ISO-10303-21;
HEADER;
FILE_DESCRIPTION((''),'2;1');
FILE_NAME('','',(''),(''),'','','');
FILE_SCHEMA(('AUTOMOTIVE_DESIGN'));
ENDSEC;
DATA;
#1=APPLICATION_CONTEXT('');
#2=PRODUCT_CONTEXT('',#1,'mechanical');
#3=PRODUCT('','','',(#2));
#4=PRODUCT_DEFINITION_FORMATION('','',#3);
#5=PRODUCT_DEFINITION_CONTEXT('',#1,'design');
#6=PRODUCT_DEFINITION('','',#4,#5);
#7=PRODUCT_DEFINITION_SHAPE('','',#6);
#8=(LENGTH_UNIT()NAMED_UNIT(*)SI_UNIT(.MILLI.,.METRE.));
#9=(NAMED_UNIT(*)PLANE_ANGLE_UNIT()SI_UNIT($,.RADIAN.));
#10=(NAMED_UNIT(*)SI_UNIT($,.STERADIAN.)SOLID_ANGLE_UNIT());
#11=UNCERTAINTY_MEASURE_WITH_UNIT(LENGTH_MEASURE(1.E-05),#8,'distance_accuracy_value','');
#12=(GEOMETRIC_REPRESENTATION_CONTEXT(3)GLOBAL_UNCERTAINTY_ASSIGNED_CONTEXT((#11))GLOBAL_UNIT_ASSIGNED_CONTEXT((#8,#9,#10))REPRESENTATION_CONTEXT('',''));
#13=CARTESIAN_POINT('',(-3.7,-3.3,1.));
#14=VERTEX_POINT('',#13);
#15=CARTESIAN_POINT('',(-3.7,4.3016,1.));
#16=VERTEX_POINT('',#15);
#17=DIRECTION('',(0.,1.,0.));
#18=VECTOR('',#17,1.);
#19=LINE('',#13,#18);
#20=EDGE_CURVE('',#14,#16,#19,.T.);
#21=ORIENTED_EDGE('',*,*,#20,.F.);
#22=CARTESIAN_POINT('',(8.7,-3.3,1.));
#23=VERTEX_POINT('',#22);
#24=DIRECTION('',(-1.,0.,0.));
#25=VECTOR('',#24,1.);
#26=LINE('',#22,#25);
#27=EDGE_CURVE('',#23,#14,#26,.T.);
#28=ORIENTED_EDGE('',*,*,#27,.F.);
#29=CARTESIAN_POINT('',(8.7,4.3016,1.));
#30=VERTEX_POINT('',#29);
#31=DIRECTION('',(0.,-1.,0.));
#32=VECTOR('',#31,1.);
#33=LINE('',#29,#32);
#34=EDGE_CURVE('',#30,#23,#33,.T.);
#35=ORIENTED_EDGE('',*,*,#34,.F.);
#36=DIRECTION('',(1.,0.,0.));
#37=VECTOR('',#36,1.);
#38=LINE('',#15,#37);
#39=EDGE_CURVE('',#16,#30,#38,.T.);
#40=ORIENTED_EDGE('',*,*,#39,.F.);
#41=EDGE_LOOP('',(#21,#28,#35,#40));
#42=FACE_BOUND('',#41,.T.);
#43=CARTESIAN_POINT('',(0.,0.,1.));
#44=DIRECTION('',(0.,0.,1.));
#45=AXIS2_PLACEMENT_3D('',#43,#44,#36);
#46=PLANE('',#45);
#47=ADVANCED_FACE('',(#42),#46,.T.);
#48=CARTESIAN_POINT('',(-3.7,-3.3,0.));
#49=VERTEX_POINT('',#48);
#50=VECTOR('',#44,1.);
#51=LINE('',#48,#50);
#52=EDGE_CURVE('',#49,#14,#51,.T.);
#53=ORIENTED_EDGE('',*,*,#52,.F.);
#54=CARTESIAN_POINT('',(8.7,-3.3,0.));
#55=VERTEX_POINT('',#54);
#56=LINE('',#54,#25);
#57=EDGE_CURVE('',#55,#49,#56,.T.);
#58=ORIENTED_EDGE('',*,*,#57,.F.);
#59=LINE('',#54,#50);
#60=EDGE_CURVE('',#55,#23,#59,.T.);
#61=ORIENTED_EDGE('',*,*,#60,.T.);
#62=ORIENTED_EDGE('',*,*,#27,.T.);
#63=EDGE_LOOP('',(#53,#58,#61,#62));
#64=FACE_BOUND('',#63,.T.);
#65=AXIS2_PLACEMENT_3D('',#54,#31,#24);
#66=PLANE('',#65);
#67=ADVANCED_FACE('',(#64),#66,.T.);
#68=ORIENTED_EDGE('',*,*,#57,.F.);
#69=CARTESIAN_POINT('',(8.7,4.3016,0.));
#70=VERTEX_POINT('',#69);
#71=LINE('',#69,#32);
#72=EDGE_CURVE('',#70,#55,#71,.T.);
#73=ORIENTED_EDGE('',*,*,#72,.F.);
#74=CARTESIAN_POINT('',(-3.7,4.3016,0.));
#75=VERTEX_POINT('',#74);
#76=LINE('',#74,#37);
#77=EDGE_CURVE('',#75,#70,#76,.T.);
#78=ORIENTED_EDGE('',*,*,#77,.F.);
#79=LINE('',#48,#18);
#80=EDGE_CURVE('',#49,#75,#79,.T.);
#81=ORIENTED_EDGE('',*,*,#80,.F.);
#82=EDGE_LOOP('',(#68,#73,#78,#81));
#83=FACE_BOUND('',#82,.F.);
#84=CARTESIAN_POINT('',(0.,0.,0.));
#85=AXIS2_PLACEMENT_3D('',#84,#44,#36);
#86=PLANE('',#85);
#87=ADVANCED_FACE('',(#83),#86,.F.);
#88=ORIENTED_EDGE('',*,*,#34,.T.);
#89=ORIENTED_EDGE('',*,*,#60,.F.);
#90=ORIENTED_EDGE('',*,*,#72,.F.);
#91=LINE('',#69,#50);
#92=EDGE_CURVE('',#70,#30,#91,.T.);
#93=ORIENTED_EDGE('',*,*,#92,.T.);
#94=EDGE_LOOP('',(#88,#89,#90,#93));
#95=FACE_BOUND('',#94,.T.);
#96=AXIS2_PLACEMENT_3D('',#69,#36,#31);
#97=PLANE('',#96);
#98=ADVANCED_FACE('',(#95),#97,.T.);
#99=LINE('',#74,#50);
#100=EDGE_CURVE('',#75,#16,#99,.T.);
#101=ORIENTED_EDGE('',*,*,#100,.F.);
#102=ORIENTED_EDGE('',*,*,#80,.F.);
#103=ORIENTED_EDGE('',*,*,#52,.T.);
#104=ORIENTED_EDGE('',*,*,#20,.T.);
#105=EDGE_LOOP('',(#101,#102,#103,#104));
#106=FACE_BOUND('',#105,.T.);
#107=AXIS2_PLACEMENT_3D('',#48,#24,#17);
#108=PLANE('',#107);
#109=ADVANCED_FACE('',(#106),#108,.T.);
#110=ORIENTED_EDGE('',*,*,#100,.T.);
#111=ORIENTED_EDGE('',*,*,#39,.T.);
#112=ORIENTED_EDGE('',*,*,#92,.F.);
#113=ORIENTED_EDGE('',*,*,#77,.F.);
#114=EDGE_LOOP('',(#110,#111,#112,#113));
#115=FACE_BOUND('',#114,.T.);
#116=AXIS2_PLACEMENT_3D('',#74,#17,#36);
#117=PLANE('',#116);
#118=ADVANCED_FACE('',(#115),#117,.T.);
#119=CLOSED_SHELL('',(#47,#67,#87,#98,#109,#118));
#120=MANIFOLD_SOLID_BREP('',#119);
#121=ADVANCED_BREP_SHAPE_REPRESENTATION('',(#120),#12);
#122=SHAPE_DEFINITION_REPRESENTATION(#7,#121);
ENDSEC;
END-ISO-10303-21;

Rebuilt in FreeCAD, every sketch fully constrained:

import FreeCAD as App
import Part
import Sketcher
from FreeCAD import Vector
Q = App.Units.Quantity


def add_polygon(sketch, points):
    """Adds a closed chain of lines whose ends are joined by coincident constraints."""
    first, n = sketch.GeometryCount, len(points)
    for a, b in zip(points, points[1:] + points[:1]):
        sketch.addGeometry(Part.LineSegment(App.Vector(*a, 0), App.Vector(*b, 0)), False)
    for i in range(n):
        sketch.addConstraint(Sketcher.Constraint("Coincident", first + i, 2, first + (i + 1) % n, 1))

doc = App.newDocument("Part")
body = doc.addObject("PartDesign::Body", "Body")

# Sketch on XY plane
sketch1 = body.newObject("Sketcher::SketchObject", "Sketch")
sketch1.AttachmentSupport = (doc.getObject("XY_Plane"), [""])
sketch1.MapMode = "FlatFace"
add_polygon(sketch1, [(9, 4), (-4, 4), (-4, -3), (9, -3)])  # lines 0-3
sketch1.addConstraint([
    Sketcher.Constraint("Horizontal", 0),
    Sketcher.Constraint("Vertical", 1),
    Sketcher.Constraint("Horizontal", 2),
    Sketcher.Constraint("Vertical", 3),
    Sketcher.Constraint("DistanceX", 0, 2, 0, 1, Q("12.4 mm")),
    Sketcher.Constraint("DistanceX", 0, 2, -1, 1, Q("3.7 mm")),
    Sketcher.Constraint("DistanceY", 1, 2, -1, 1, Q("3.3 mm")),
    Sketcher.Constraint("DistanceY", 1, 2, 1, 1, Q("7.6016 mm")),
])
pad1 = body.newObject("PartDesign::Pad", "Pad")
pad1.Profile = sketch1
pad1.Length = 1

doc.recompute()
